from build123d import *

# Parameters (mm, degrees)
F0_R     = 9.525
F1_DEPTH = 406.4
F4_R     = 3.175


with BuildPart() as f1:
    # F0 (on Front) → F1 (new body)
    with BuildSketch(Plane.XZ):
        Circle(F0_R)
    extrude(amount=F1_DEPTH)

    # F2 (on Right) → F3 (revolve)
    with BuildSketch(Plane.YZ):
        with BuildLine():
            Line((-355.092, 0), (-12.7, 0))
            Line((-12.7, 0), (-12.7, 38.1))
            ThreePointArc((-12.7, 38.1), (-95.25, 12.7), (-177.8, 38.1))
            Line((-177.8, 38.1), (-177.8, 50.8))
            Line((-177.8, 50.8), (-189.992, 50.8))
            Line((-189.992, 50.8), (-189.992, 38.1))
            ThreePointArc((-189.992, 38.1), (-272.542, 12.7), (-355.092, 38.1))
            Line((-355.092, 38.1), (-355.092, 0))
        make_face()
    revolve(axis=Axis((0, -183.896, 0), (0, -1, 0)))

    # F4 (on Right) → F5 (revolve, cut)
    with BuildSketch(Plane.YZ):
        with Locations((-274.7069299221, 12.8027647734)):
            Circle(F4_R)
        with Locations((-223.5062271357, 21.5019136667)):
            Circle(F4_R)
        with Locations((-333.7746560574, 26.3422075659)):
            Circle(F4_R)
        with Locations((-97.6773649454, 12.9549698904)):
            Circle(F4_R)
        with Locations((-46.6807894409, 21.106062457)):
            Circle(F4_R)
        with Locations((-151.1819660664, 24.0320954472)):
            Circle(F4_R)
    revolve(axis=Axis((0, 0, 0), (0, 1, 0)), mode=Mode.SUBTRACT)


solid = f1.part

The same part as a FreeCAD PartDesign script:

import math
import FreeCAD as App
import Part
import Sketcher
Q = App.Units.Quantity

doc = App.newDocument("Part")
body = doc.addObject("PartDesign::Body", "Body")

sketch1 = body.newObject("Sketcher::SketchObject", "Sketch")
sketch1.AttachmentSupport = (doc.getObject("XZ_Plane"), [""])
sketch1.MapMode = "FlatFace"
sketch1.addGeometry(Part.Circle(App.Vector(0, 0, 0), App.Vector(0, 0, 1), 9.525), False)
sketch1.addConstraint(Sketcher.Constraint("Coincident", 0, 3, -1, 1))
sketch1.addConstraint(Sketcher.Constraint("Diameter", 0, Q("0.75 in")))
pad1 = body.newObject("PartDesign::Pad", "Pad")
pad1.Profile = sketch1
pad1.Length = Q("16 in")

sketch2 = body.newObject("Sketcher::SketchObject", "Sketch001")
sketch2.AttachmentSupport = (doc.getObject("YZ_Plane"), [""])
sketch2.MapMode = "FlatFace"
sketch2.addGeometry(Part.LineSegment(App.Vector(-355.092, 0, 0), App.Vector(-12.7, 0, 0)), False)
sketch2.addGeometry(Part.LineSegment(App.Vector(-12.7, 0, 0), App.Vector(-12.7, 38.1, 0)), False)
sketch2.addGeometry(Part.ArcOfCircle(Part.Circle(App.Vector(-95.25, 159.54375, 0), App.Vector(0, 0, 1), 146.84375), math.radians(-124.205458), math.radians(-55.794542)), False)
sketch2.addGeometry(Part.LineSegment(App.Vector(-177.8, 38.1, 0), App.Vector(-177.8, 50.8, 0)), False)
sketch2.addGeometry(Part.LineSegment(App.Vector(-177.8, 50.8, 0), App.Vector(-189.992, 50.8, 0)), False)
sketch2.addGeometry(Part.LineSegment(App.Vector(-189.992, 50.8, 0), App.Vector(-189.992, 38.1, 0)), False)
sketch2.addGeometry(Part.ArcOfCircle(Part.Circle(App.Vector(-272.542, 159.54375, 0), App.Vector(0, 0, 1), 146.84375), math.radians(-124.205458), math.radians(-55.794542)), False)
sketch2.addGeometry(Part.LineSegment(App.Vector(-355.092, 38.1, 0), App.Vector(-355.092, 0, 0)), False)
sketch2.addConstraint(Sketcher.Constraint("Coincident", 0, 2, 1, 1))
sketch2.addConstraint(Sketcher.Constraint("Coincident", 1, 2, 2, 2))
sketch2.addConstraint(Sketcher.Constraint("Coincident", 2, 1, 3, 1))
sketch2.addConstraint(Sketcher.Constraint("Coincident", 3, 2, 4, 1))
sketch2.addConstraint(Sketcher.Constraint("Coincident", 4, 2, 5, 1))
sketch2.addConstraint(Sketcher.Constraint("Coincident", 5, 2, 6, 2))
sketch2.addConstraint(Sketcher.Constraint("Coincident", 6, 1, 7, 1))
sketch2.addConstraint(Sketcher.Constraint("Coincident", 7, 2, 0, 1))
sketch2.addConstraint(Sketcher.Constraint("Horizontal", 0))
sketch2.addConstraint(Sketcher.Constraint("Vertical", 1))
sketch2.addConstraint(Sketcher.Constraint("Vertical", 3))
sketch2.addConstraint(Sketcher.Constraint("Horizontal", 4))
sketch2.addConstraint(Sketcher.Constraint("Vertical", 5))
sketch2.addConstraint(Sketcher.Constraint("Vertical", 7))
sketch2.addConstraint(Sketcher.Constraint("Equal", 2, 6))
sketch2.addConstraint(Sketcher.Constraint("PointOnObject", 0, 2, -1))
sketch2.addConstraint(Sketcher.Constraint("Horizontal", 2, 3, 6, 3))
sketch2.addConstraint(Sketcher.Constraint("Horizontal", 1, 2, 2, 1))
sketch2.addConstraint(Sketcher.Constraint("Horizontal", 2, 1, 5, 2))
sketch2.addConstraint(Sketcher.Constraint("Horizontal", 5, 2, 6, 1))
sketch2.addConstraint(Sketcher.Constraint("DistanceY", 1, 1, 1, 2, Q("1.5 in")))
sketch2.addConstraint(Sketcher.Constraint("DistanceY", 3, 1, 3, 2, Q("0.5 in")))
sketch2.addConstraint(Sketcher.Constraint("DistanceX", 2, 1, -1, 1, Q("7 in")))
sketch2.addConstraint(Sketcher.Constraint("Radius", 2, Q("5.78125 in")))
sketch2.addConstraint(Sketcher.Constraint("DistanceX", 0, 1, 0, 2, Q("13.48 in")))
sketch2.addConstraint(Sketcher.Constraint("DistanceX", 4, 2, 4, 1, Q("0.48 in")))
revolution = body.newObject("PartDesign::Revolution", "Revolution")
revolution.Profile = sketch2
revolution.ReferenceAxis = (sketch2, ["H_Axis"])
revolution.Angle = 360

sketch3 = body.newObject("Sketcher::SketchObject", "Sketch002")
sketch3.AttachmentSupport = (doc.getObject("YZ_Plane"), [""])
sketch3.MapMode = "FlatFace"
sketch3.addGeometry(Part.Circle(App.Vector(-274.70693, 12.802765, 0), App.Vector(0, 0, 1), 3.175), False)
sketch3.addGeometry(Part.Circle(App.Vector(-223.506227, 21.501914, 0), App.Vector(0, 0, 1), 3.175), False)
sketch3.addGeometry(Part.Circle(App.Vector(-333.774656, 26.342208, 0), App.Vector(0, 0, 1), 3.175), False)
sketch3.addGeometry(Part.Circle(App.Vector(-97.677365, 12.95497, 0), App.Vector(0, 0, 1), 3.175), False)
sketch3.addGeometry(Part.Circle(App.Vector(-46.680789, 21.106062, 0), App.Vector(0, 0, 1), 3.175), False)
sketch3.addGeometry(Part.Circle(App.Vector(-151.181966, 24.032095, 0), App.Vector(0, 0, 1), 3.175), False)
sketch3.addConstraint(Sketcher.Constraint("Equal", 0, 1))
sketch3.addConstraint(Sketcher.Constraint("Equal", 1, 2))
sketch3.addConstraint(Sketcher.Constraint("Equal", 2, 3))
sketch3.addConstraint(Sketcher.Constraint("Equal", 3, 4))
sketch3.addConstraint(Sketcher.Constraint("Equal", 4, 5))
sketch3.addConstraint(Sketcher.Constraint("Diameter", 0, Q("0.25 in")))
sketch3.addConstraint(Sketcher.Constraint("DistanceX", 5, 3, 3, 3, Q("53.504601 mm")))
sketch3.addConstraint(Sketcher.Constraint("DistanceX", 0, 3, -1, 1, Q("274.70693 mm")))
sketch3.addConstraint(Sketcher.Constraint("DistanceY", -1, 1, 3, 3, Q("12.95497 mm")))
sketch3.addConstraint(Sketcher.Constraint("DistanceX", 4, 3, -1, 1, Q("46.680789 mm")))
sketch3.addConstraint(Sketcher.Constraint("DistanceY", 0, 3, 1, 3, Q("8.699149 mm")))
sketch3.addConstraint(Sketcher.Constraint("DistanceX", 2, 3, 1, 3, Q("110.268429 mm")))
sketch3.addConstraint(Sketcher.Constraint("DistanceX", 2, 3, 3, 3, Q("236.097291 mm")))
sketch3.addConstraint(Sketcher.Constraint("DistanceY", 4, 3, 1, 3, Q("0.395851 mm")))
sketch3.addConstraint(Sketcher.Constraint("DistanceY", 1, 3, 5, 3, Q("2.530182 mm")))
sketch3.addConstraint(Sketcher.Constraint("DistanceY", -1, 1, 0, 3, Q("12.802765 mm")))
sketch3.addConstraint(Sketcher.Constraint("DistanceX", 1, 3, -1, 1, Q("223.506227 mm")))
sketch3.addConstraint(Sketcher.Constraint("DistanceY", -1, 1, 2, 3, Q("26.342208 mm")))
groove = body.newObject("PartDesign::Groove", "Groove")
groove.Profile = sketch3
groove.ReferenceAxis = (sketch3, ["H_Axis"])
groove.Angle = 360

doc.recompute()
